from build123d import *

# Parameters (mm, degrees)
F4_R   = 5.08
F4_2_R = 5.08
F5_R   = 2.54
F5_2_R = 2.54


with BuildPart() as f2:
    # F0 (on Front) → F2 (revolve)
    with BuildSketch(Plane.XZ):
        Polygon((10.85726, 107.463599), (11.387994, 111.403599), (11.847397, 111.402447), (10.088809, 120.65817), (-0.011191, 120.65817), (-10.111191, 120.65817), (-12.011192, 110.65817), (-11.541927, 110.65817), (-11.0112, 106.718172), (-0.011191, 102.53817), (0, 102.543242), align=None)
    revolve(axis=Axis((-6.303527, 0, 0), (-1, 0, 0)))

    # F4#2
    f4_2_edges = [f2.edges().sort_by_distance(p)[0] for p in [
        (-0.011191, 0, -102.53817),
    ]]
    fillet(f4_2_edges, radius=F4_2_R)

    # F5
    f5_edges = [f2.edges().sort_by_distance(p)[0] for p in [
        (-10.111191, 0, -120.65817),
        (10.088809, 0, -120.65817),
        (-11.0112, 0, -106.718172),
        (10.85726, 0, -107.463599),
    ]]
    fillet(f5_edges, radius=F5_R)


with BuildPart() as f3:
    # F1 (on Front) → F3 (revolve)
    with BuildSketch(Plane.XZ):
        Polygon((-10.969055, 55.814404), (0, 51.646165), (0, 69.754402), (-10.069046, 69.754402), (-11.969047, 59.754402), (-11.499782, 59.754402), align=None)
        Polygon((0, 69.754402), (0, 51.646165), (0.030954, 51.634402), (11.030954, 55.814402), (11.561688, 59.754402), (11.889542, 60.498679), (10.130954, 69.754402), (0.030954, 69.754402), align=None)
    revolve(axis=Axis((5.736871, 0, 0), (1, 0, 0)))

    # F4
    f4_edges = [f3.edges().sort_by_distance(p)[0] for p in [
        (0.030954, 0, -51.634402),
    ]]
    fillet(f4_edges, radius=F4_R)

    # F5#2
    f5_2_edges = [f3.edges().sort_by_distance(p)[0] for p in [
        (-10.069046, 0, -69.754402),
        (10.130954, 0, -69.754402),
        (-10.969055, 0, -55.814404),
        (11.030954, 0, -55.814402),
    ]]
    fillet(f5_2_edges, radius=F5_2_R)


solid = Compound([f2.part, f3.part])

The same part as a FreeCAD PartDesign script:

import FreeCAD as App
import Part
import Sketcher
from FreeCAD import Vector
Q = App.Units.Quantity


def edges_at(feature, points):
    """Names of the edges that pass closest to the given points."""
    edges = feature.Shape.Edges
    near = lambda p: min(range(len(edges)), key=lambda i: edges[i].distToShape(Part.Vertex(*p))[0])
    return sorted({f"Edge{near(p) + 1}" for p in points})

doc = App.newDocument("Part")
body = doc.addObject("PartDesign::Body", "Body")

sketch1 = body.newObject("Sketcher::SketchObject", "Sketch")
sketch1.AttachmentSupport = (doc.getObject("XZ_Plane"), [""])
sketch1.MapMode = "FlatFace"
sketch1.addGeometry([
    Part.LineSegment(Vector(10.85726, 107.463599, 0), Vector(11.387994, 111.403599, 0)),
    Part.LineSegment(Vector(11.387994, 111.403599, 0), Vector(11.847397, 111.402447, 0)),
    Part.LineSegment(Vector(11.847397, 111.402447, 0), Vector(10.088809, 120.65817, 0)),
    Part.LineSegment(Vector(10.088809, 120.65817, 0), Vector(-10.111191, 120.65817, 0)),
    Part.LineSegment(Vector(-10.111191, 120.65817, 0), Vector(-12.011192, 110.65817, 0)),
    Part.LineSegment(Vector(-12.011192, 110.65817, 0), Vector(-11.541927, 110.65817, 0)),
    Part.LineSegment(Vector(-11.541927, 110.65817, 0), Vector(-11.0112, 106.718172, 0)),
    Part.LineSegment(Vector(-11.0112, 106.718172, 0), Vector(-0.011191, 102.53817, 0)),
    Part.LineSegment(Vector(-0.011191, 102.53817, 0), Vector(0, 102.543242, 0)),
    Part.LineSegment(Vector(0, 102.543242, 0), Vector(10.85726, 107.463599, 0)),
], False)
sketch1.addConstraint([
    Sketcher.Constraint("Coincident", 0, 2, 1, 1),
    Sketcher.Constraint("Coincident", 1, 2, 2, 1),
    Sketcher.Constraint("Coincident", 2, 2, 3, 1),
    Sketcher.Constraint("Coincident", 3, 2, 4, 1),
    Sketcher.Constraint("Coincident", 4, 2, 5, 1),
    Sketcher.Constraint("Coincident", 5, 2, 6, 1),
    Sketcher.Constraint("Coincident", 6, 2, 7, 1),
    Sketcher.Constraint("Coincident", 7, 2, 8, 1),
    Sketcher.Constraint("Coincident", 8, 2, 9, 1),
    Sketcher.Constraint("Coincident", 9, 2, 0, 1),
    Sketcher.Constraint("Horizontal", 3),
    Sketcher.Constraint("Horizontal", 5),
    Sketcher.Constraint("PointOnObject", 8, 2, -2),
    Sketcher.Constraint("DistanceX", 3, 2, 3, 1, 20.2),
    Sketcher.Constraint("Distance", 4, 10.1789),
    Sketcher.Constraint("DistanceY", -1, 1, 0, 2, 111.403599),
    Sketcher.Constraint("DistanceX", 6, 2, -1, 1, 11.0112),
    Sketcher.Constraint("DistanceY", -1, 1, 9, 2, 107.463599),
    Sketcher.Constraint("DistanceX", 4, 2, 3, 2, 1.900001),
    Sketcher.Constraint("DistanceY", 6, 2, 5, 2, 3.939998),
    Sketcher.Constraint("DistanceY", 7, 2, 5, 2, 8.12),
    Sketcher.Constraint("DistanceX", 4, 2, 7, 2, 12.000001),
    Sketcher.Constraint("Distance", 7, 11.767439),
    Sketcher.Constraint("Distance", 9, 11.920151),
    Sketcher.Constraint("DistanceX", 5, 1, 5, 2, 0.469265),
    Sketcher.Constraint("DistanceY", -1, 1, 2, 2, 120.65817),
    Sketcher.Constraint("DistanceX", -1, 1, 9, 2, 10.85726),
    Sketcher.Constraint("DistanceX", 2, 2, 1, 2, 1.758588),
    Sketcher.Constraint("DistanceX", 5, 2, 0, 2, 22.929921),
    Sketcher.Constraint("Distance", 2, 9.421308),
])
revolution = body.newObject("PartDesign::Revolution", "Revolution")
revolution.Profile = sketch1
revolution.ReferenceAxis = (sketch1, ["H_Axis"])
revolution.Angle = 360
doc.recompute()

fillet = body.newObject("PartDesign::Fillet", "Fillet")
fillet.Base = (revolution, edges_at(revolution, [(-0.011, 0, -102.538)]))
fillet.Radius = Q("0.2 in")
doc.recompute()

fillet2 = body.newObject("PartDesign::Fillet", "Fillet001")
fillet2.Base = (fillet, edges_at(fillet, [
    (-10.111, 0, -120.658),
    (10.089, 0, -120.658),
    (-11.011, 0, -106.718),
    (10.857, 0, -107.464),
]))
fillet2.Radius = Q("0.1 in")
body2 = doc.addObject("PartDesign::Body", "Body001")

sketch2 = body2.newObject("Sketcher::SketchObject", "Sketch001")
sketch2.AttachmentSupport = (doc.getObject("XZ_Plane001"), [""])
sketch2.MapMode = "FlatFace"
sketch2.addGeometry([
    Part.LineSegment(Vector(-10.969055, 55.814404, 0), Vector(0, 51.646165, 0)),
    Part.LineSegment(Vector(0, 51.646165, 0), Vector(0.030954, 51.634402, 0)),
    Part.LineSegment(Vector(0.030954, 51.634402, 0), Vector(11.030954, 55.814402, 0)),
    Part.LineSegment(Vector(11.030954, 55.814402, 0), Vector(11.561688, 59.754402, 0)),
    Part.LineSegment(Vector(11.561688, 59.754402, 0), Vector(11.889542, 60.498679, 0)),
    Part.LineSegment(Vector(11.889542, 60.498679, 0), Vector(10.130954, 69.754402, 0)),
    Part.LineSegment(Vector(10.130954, 69.754402, 0), Vector(-10.069046, 69.754402, 0)),
    Part.LineSegment(Vector(-10.069046, 69.754402, 0), Vector(-11.969047, 59.754402, 0)),
    Part.LineSegment(Vector(-11.969047, 59.754402, 0), Vector(-11.499782, 59.754402, 0)),
    Part.LineSegment(Vector(-11.499782, 59.754402, 0), Vector(-10.969055, 55.814404, 0)),
], False)
sketch2.addConstraint([
    Sketcher.Constraint("Coincident", 0, 2, 1, 1),
    Sketcher.Constraint("Coincident", 1, 2, 2, 1),
    Sketcher.Constraint("Coincident", 2, 2, 3, 1),
    Sketcher.Constraint("Coincident", 3, 2, 4, 1),
    Sketcher.Constraint("Coincident", 4, 2, 5, 1),
    Sketcher.Constraint("Coincident", 5, 2, 6, 1),
    Sketcher.Constraint("Coincident", 6, 2, 7, 1),
    Sketcher.Constraint("Coincident", 7, 2, 8, 1),
    Sketcher.Constraint("Coincident", 8, 2, 9, 1),
    Sketcher.Constraint("Coincident", 9, 2, 0, 1),
    Sketcher.Constraint("Horizontal", 6),
    Sketcher.Constraint("Horizontal", 8),
    Sketcher.Constraint("PointOnObject", 0, 2, -2),
    Sketcher.Constraint("Horizontal", 3, 2, 7, 2),
    Sketcher.Constraint("DistanceX", 6, 2, 6, 1, 20.2),
    Sketcher.Constraint("Distance", 7, 10.1789),
    Sketcher.Constraint("DistanceY", -1, 1, 5, 2, 69.754402),
    Sketcher.Constraint("DistanceX", 1, 2, 2, 2, 11.0),
    Sketcher.Constraint("DistanceY", 1, 2, 2, 2, 4.18),
    Sketcher.Constraint("DistanceY", 2, 2, 3, 2, 3.94),
    Sketcher.Constraint("DistanceY", 3, 2, 5, 2, 10.0),
    Sketcher.Constraint("DistanceX", 5, 2, 2, 2, 0.9),
    Sketcher.Constraint("DistanceX", 8, 1, 8, 2, 0.469265),
    Sketcher.Constraint("DistanceY", -1, 1, 4, 2, 60.498679),
    Sketcher.Constraint("DistanceX", 2, 2, 4, 2, 0.858588),
    Sketcher.Constraint("DistanceX", 7, 2, 9, 2, 0.999992),
    Sketcher.Constraint("DistanceY", 0, 2, 9, 2, 4.168239),
    Sketcher.Constraint("Distance", 0, 11.734325),
    Sketcher.Constraint("Distance", 1, 0.033114),
    Sketcher.Constraint("Distance", 3, 3.975585),
])
revolution2 = body2.newObject("PartDesign::Revolution", "Revolution001")
revolution2.Profile = sketch2
revolution2.ReferenceAxis = (sketch2, ["H_Axis"])
revolution2.Angle = 360
doc.recompute()

fillet3 = body2.newObject("PartDesign::Fillet", "Fillet002")
fillet3.Base = (revolution2, edges_at(revolution2, [(0.031, 0, -51.634)]))
fillet3.Radius = Q("0.2 in")
doc.recompute()

fillet4 = body2.newObject("PartDesign::Fillet", "Fillet003")
fillet4.Base = (fillet3, edges_at(fillet3, [
    (-10.069, 0, -69.754),
    (10.131, 0, -69.754),
    (-10.969, 0, -55.814),
    (11.031, 0, -55.814),
]))
fillet4.Radius = Q("0.1 in")

doc.recompute()
